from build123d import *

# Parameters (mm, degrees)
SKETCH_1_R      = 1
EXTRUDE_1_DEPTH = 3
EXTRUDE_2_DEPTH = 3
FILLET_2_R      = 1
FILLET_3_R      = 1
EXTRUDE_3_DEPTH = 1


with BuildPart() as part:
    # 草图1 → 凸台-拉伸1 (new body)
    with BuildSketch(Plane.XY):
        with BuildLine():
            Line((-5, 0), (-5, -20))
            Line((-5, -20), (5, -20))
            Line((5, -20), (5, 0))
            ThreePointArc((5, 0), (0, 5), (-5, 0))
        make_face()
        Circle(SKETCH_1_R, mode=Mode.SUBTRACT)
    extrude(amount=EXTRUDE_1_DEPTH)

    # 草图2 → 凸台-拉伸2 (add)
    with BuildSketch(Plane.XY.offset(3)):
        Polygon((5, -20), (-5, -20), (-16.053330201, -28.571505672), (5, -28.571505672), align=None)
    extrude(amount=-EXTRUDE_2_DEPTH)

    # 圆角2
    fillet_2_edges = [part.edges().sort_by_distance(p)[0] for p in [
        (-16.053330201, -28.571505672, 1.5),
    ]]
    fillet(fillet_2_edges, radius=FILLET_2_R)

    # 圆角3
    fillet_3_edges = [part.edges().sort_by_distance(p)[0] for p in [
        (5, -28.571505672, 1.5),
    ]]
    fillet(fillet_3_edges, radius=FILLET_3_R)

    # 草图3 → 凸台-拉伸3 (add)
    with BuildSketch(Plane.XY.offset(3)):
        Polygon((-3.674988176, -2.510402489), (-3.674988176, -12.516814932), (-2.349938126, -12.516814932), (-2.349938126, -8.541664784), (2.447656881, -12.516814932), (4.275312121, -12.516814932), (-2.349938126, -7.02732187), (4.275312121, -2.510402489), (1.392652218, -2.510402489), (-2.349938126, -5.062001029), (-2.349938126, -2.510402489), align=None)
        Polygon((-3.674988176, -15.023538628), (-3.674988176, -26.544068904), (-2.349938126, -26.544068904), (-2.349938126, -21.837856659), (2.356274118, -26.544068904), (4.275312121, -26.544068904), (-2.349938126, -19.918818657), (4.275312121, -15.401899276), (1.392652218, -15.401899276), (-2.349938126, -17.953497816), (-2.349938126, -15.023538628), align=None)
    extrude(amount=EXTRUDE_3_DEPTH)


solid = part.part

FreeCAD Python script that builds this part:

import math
import FreeCAD as App
import Part
import Sketcher

V = App.Vector
Q = App.Units.Quantity


def edges_at(feature, points):
    """Names of the edges that pass closest to the given points."""
    edges = feature.Shape.Edges
    near = lambda p: min(range(len(edges)), key=lambda i: edges[i].distToShape(Part.Vertex(*p))[0])
    return sorted({f"Edge{near(p) + 1}" for p in points})


def add_polygon(sketch, points):
    """Adds a closed chain of lines whose ends are joined by coincident constraints."""
    first, n = sketch.GeometryCount, len(points)
    for a, b in zip(points, points[1:] + points[:1]):
        sketch.addGeometry(Part.LineSegment(App.Vector(*a, 0), App.Vector(*b, 0)), False)
    for i in range(n):
        sketch.addConstraint(Sketcher.Constraint("Coincident", first + i, 2, first + (i + 1) % n, 1))

doc = App.newDocument("Part")
body = doc.addObject("PartDesign::Body", "Body")

sketch1 = doc.addObject("Sketcher::SketchObject", "Sketch")
body.addObject(sketch1)
sketch1.AttachmentSupport = (doc.XY_Plane, [""])
sketch1.MapMode = "FlatFace"
sketch1.addGeometry(Part.LineSegment(V(-5, 0, 0), V(-5, -20, 0)), False)
sketch1.addGeometry(Part.LineSegment(V(-5, -20, 0), V(5, -20, 0)), False)
sketch1.addGeometry(Part.LineSegment(V(5, -20, 0), V(5, 0, 0)), False)
sketch1.addGeometry(Part.ArcOfCircle(Part.Circle(V(0, 0, 0), V(0, 0, 1), 5), math.radians(0), math.radians(180)), False)
sketch1.addGeometry(Part.Circle(V(0, 0, 0), V(0, 0, 1), 1), False)
sketch1.addConstraint(Sketcher.Constraint("Coincident", 0, 2, 1, 1))
sketch1.addConstraint(Sketcher.Constraint("Coincident", 1, 2, 2, 1))
sketch1.addConstraint(Sketcher.Constraint("Tangent", 2, 2, 3, 1))
sketch1.addConstraint(Sketcher.Constraint("Tangent", 3, 2, 0, 1))
sketch1.addConstraint(Sketcher.Constraint("Vertical", 0))
sketch1.addConstraint(Sketcher.Constraint("Horizontal", 1))
sketch1.addConstraint(Sketcher.Constraint("Vertical", 2))
sketch1.addConstraint(Sketcher.Constraint("Coincident", 3, 3, -1, 1))
sketch1.addConstraint(Sketcher.Constraint("Coincident", 4, 3, -1, 1))
sketch1.addConstraint(Sketcher.Constraint("Diameter", 4, 2.0))
sketch1.addConstraint(Sketcher.Constraint("Radius", 3, 5.0))
sketch1.addConstraint(Sketcher.Constraint("DistanceY", 0, 2, 0, 1, 20.0))
pad1 = doc.addObject("PartDesign::Pad", "Pad")
body.addObject(pad1)
pad1.Profile = sketch1
pad1.Length = 3

sketch2 = doc.addObject("Sketcher::SketchObject", "Sketch001")
body.addObject(sketch2)
sketch2.AttachmentSupport = (doc.XY_Plane, [""])
sketch2.MapMode = "FlatFace"
sketch2.AttachmentOffset = App.Placement(V(0, 0, 3), App.Rotation())
add_polygon(sketch2, [(5, -20), (-5, -20), (-16, -29), (5, -29)])
sketch2.addConstraint(Sketcher.Constraint("Horizontal", 0))
sketch2.addConstraint(Sketcher.Constraint("Horizontal", 2))
sketch2.addConstraint(Sketcher.Constraint("Vertical", 3))
sketch2.addConstraint(Sketcher.Constraint("DistanceX", 0, 2, 0, 1, 10.0))
sketch2.addConstraint(Sketcher.Constraint("DistanceX", 0, 2, -1, 1, 5.0))
sketch2.addConstraint(Sketcher.Constraint("DistanceY", 0, 2, -1, 1, 20.0))
sketch2.addConstraint(Sketcher.Constraint("DistanceX", 2, 1, 2, 2, 21.05333))
sketch2.addConstraint(Sketcher.Constraint("Distance", 1, 13.987381))
pad2 = doc.addObject("PartDesign::Pad", "Pad001")
body.addObject(pad2)
pad2.Profile = sketch2
pad2.Length = 3
pad2.Reversed = True
doc.recompute()

fillet = doc.addObject("PartDesign::Fillet", "Fillet")
body.addObject(fillet)
fillet.Base = (pad2, edges_at(pad2, [(-16.053, -28.572, 1.5)]))
fillet.Radius = 1
doc.recompute()

fillet2 = doc.addObject("PartDesign::Fillet", "Fillet001")
body.addObject(fillet2)
fillet2.Base = (fillet, edges_at(fillet, [(5, -28.572, 1.5)]))
fillet2.Radius = 1

sketch3 = doc.addObject("Sketcher::SketchObject", "Sketch002")
body.addObject(sketch3)
sketch3.AttachmentSupport = (doc.XY_Plane, [""])
sketch3.MapMode = "FlatFace"
sketch3.AttachmentOffset = App.Placement(V(0, 0, 3), App.Rotation())
add_polygon(sketch3, [(-3.7, -2.5), (-3.7, -12.5), (-2.3, -12.5), (-2.3, -8.5), (2.4, -12.5), (4.3, -12.5), (-2.3, -7), (4.3, -2.5), (1.4, -2.5), (-2.3, -5.1), (-2.3, -2.5)])
add_polygon(sketch3, [(-3.7, -15), (-3.7, -26.5), (-2.3, -26.5), (-2.3, -21.8), (2.4, -26.5), (4.3, -26.5), (-2.3, -19.9), (4.3, -15.4), (1.4, -15.4), (-2.3, -18), (-2.3, -15)])
sketch3.addConstraint(Sketcher.Constraint("Vertical", 0))
sketch3.addConstraint(Sketcher.Constraint("Horizontal", 1))
sketch3.addConstraint(Sketcher.Constraint("Vertical", 2))
sketch3.addConstraint(Sketcher.Constraint("Horizontal", 4))
sketch3.addConstraint(Sketcher.Constraint("Horizontal", 7))
sketch3.addConstraint(Sketcher.Constraint("Vertical", 9))
sketch3.addConstraint(Sketcher.Constraint("Horizontal", 10))
sketch3.addConstraint(Sketcher.Constraint("Vertical", 11))
sketch3.addConstraint(Sketcher.Constraint("Horizontal", 12))
sketch3.addConstraint(Sketcher.Constraint("Vertical", 13))
sketch3.addConstraint(Sketcher.Constraint("Horizontal", 15))
sketch3.addConstraint(Sketcher.Constraint("Horizontal", 18))
sketch3.addConstraint(Sketcher.Constraint("Vertical", 20))
sketch3.addConstraint(Sketcher.Constraint("Horizontal", 21))
sketch3.addConstraint(Sketcher.Constraint("Parallel", 3, 5))
sketch3.addConstraint(Sketcher.Constraint("Parallel", 6, 8))
sketch3.addConstraint(Sketcher.Constraint("Parallel", 14, 16))
sketch3.addConstraint(Sketcher.Constraint("Parallel", 8, 17))
sketch3.addConstraint(Sketcher.Constraint("Parallel", 17, 19))
sketch3.addConstraint(Sketcher.Constraint("Horizontal", 1, 2, 3, 2))
sketch3.addConstraint(Sketcher.Constraint("Horizontal", 7, 2, 9, 2))
sketch3.addConstraint(Sketcher.Constraint("Horizontal", 12, 2, 14, 2))
sketch3.addConstraint(Sketcher.Constraint("Vertical", 2, 2, 5, 2))
sketch3.addConstraint(Sketcher.Constraint("Vertical", 4, 2, 6, 2))
sketch3.addConstraint(Sketcher.Constraint("Vertical", 5, 2, 8, 2))
sketch3.addConstraint(Sketcher.Constraint("Vertical", 10, 2, 11, 2))
sketch3.addConstraint(Sketcher.Constraint("Vertical", 9, 2, 12, 2))
sketch3.addConstraint(Sketcher.Constraint("Vertical", 6, 2, 15, 2))
sketch3.addConstraint(Sketcher.Constraint("Vertical", 13, 2, 16, 2))
sketch3.addConstraint(Sketcher.Constraint("Vertical", 15, 2, 17, 2))
sketch3.addConstraint(Sketcher.Constraint("Vertical", 7, 2, 18, 2))
sketch3.addConstraint(Sketcher.Constraint("Vertical", 16, 2, 19, 2))
sketch3.addConstraint(Sketcher.Constraint("Angle", 14, Q("-45 deg")))
sketch3.addConstraint(Sketcher.Constraint("DistanceY", 9, 1, 9, 2, 2.551599))
sketch3.addConstraint(Sketcher.Constraint("DistanceY", 8, 2, -1, 1, 5.062001))
sketch3.addConstraint(Sketcher.Constraint("DistanceX", 1, 1, 1, 2, 1.32505))
sketch3.addConstraint(Sketcher.Constraint("DistanceX", 7, 2, 7, 1, 2.88266))
sketch3.addConstraint(Sketcher.Constraint("DistanceX", 15, 1, 15, 2, 1.919038))
sketch3.addConstraint(Sketcher.Constraint("DistanceY", 2, 1, 2, 2, 3.97515))
sketch3.addConstraint(Sketcher.Constraint("DistanceY", 11, 2, 11, 1, 11.52053))
sketch3.addConstraint(Sketcher.Constraint("DistanceY", 20, 1, 20, 2, 2.929959))
sketch3.addConstraint(Sketcher.Constraint("DistanceY", 17, 2, -1, 1, 15.401899))
sketch3.addConstraint(Sketcher.Constraint("Distance", 3, 6.230468))
sketch3.addConstraint(Sketcher.Constraint("DistanceX", 0, 2, -1, 1, 3.674988))
pad3 = doc.addObject("PartDesign::Pad", "Pad002")
body.addObject(pad3)
pad3.Profile = sketch3
pad3.Length = 1

doc.recompute()
